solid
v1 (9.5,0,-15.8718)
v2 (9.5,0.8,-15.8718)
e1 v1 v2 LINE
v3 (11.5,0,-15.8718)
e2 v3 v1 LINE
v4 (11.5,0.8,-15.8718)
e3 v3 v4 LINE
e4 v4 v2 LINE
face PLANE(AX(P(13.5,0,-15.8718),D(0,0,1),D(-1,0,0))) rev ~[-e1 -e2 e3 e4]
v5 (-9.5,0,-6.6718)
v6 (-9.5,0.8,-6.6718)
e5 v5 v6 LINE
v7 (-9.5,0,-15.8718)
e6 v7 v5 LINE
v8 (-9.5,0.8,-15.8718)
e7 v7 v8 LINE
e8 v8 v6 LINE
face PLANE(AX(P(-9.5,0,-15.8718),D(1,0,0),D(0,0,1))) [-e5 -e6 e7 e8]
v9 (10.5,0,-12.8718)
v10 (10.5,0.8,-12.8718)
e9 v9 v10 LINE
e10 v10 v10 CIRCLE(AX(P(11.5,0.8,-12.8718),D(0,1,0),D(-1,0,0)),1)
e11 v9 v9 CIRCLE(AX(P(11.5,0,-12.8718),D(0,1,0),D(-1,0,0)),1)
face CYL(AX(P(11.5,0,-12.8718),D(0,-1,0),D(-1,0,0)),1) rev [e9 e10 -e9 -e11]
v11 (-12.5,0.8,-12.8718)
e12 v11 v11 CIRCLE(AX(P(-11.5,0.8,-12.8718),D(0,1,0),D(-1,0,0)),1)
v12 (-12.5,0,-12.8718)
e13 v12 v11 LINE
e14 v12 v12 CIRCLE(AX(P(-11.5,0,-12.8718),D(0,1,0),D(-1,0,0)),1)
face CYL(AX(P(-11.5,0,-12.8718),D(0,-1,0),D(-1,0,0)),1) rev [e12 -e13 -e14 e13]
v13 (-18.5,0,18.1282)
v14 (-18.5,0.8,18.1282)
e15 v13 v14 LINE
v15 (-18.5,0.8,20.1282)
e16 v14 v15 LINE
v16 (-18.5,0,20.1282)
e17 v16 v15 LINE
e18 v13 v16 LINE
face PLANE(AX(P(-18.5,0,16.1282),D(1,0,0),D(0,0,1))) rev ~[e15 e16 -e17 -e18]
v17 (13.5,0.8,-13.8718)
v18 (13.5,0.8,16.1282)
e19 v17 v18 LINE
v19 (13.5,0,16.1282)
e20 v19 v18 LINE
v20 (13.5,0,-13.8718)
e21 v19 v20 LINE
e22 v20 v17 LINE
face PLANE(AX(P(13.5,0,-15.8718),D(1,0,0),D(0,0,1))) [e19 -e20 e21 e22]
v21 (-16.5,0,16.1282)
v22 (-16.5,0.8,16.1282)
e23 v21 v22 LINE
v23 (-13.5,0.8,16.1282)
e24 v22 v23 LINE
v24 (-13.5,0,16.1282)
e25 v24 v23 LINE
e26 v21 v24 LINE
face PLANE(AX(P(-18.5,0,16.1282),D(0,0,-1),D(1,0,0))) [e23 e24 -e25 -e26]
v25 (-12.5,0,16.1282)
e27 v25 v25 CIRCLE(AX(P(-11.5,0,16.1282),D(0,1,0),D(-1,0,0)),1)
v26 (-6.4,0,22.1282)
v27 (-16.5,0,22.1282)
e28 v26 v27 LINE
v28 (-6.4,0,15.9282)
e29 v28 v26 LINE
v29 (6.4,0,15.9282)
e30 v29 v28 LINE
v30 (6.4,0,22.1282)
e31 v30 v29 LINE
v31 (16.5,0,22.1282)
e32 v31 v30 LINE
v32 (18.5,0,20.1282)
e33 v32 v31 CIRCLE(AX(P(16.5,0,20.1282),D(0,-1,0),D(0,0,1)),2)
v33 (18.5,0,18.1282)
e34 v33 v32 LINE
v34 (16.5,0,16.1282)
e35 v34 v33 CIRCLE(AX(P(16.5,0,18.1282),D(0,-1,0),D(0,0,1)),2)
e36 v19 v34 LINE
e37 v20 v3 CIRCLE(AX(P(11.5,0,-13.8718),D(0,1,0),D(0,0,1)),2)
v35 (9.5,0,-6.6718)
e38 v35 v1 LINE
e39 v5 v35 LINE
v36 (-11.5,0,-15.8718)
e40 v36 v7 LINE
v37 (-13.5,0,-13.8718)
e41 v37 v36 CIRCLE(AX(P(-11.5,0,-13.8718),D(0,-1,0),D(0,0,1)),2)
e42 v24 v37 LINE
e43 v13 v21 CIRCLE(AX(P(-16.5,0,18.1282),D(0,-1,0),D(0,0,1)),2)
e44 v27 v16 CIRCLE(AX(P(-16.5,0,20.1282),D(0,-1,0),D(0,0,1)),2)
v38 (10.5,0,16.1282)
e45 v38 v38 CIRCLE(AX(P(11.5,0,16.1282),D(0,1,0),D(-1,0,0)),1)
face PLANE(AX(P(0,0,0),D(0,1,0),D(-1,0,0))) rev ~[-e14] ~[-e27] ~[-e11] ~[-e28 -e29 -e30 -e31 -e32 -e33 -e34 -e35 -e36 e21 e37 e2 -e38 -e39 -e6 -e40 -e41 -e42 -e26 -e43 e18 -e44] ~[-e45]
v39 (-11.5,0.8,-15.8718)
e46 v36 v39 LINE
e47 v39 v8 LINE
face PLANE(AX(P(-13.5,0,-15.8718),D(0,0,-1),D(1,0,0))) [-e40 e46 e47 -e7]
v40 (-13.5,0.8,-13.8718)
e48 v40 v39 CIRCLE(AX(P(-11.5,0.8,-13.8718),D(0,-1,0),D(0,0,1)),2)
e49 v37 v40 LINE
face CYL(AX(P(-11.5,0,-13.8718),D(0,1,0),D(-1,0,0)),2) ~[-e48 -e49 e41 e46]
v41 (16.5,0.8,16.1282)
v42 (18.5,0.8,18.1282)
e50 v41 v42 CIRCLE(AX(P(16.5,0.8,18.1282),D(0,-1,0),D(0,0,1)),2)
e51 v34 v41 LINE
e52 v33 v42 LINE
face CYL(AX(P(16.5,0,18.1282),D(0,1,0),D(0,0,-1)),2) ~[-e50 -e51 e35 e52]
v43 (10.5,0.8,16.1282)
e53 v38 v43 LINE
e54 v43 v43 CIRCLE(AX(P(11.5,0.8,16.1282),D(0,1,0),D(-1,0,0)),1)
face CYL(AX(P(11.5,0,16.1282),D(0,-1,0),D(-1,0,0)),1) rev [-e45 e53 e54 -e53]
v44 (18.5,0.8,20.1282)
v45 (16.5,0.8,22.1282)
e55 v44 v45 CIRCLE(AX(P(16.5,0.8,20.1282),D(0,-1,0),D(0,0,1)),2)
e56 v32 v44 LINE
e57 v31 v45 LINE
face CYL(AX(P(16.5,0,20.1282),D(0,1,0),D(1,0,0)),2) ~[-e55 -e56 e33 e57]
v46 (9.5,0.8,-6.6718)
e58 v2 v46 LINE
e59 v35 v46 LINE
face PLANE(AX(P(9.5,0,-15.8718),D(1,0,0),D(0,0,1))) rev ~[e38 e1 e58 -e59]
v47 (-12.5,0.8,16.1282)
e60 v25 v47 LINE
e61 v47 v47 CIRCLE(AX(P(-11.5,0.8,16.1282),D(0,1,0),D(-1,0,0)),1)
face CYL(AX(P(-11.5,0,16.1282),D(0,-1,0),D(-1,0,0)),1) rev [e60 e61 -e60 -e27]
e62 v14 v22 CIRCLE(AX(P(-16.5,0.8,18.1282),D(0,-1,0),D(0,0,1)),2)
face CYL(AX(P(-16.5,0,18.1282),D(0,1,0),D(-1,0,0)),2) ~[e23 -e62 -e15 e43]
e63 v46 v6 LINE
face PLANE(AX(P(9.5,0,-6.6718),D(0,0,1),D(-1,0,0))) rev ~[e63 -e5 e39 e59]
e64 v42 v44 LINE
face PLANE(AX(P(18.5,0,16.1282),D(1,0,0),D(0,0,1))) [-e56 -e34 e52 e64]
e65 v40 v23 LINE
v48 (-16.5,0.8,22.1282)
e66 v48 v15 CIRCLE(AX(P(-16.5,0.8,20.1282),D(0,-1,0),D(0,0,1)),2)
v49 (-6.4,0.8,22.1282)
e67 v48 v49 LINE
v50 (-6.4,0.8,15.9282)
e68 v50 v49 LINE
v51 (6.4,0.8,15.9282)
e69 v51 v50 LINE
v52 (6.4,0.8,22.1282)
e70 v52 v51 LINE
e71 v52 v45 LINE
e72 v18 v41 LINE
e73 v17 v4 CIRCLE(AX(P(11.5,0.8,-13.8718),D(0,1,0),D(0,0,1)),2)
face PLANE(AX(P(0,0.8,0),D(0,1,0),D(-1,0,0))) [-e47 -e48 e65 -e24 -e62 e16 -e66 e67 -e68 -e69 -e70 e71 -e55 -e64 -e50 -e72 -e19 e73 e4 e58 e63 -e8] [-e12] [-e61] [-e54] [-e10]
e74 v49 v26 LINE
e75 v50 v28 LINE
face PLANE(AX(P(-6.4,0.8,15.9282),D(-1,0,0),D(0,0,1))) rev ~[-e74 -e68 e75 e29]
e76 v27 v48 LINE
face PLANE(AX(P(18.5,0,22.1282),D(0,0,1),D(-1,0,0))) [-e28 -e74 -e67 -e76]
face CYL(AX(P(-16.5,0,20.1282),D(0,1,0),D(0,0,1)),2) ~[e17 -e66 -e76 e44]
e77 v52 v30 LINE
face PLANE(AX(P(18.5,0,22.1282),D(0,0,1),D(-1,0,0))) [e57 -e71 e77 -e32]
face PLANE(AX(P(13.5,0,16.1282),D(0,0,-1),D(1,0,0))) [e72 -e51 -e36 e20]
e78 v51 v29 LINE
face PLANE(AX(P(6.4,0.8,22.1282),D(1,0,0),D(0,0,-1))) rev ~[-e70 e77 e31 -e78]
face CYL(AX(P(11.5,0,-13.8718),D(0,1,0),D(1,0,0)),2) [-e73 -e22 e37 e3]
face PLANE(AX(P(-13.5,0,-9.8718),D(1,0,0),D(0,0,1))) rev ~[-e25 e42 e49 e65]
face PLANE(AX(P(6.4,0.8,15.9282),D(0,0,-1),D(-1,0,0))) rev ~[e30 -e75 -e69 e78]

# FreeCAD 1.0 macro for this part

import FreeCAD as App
import Part
import Sketcher
from FreeCAD import Vector
Q = App.Units.Quantity


def edges_at(feature, points):
    """Names of the edges that pass closest to the given points."""
    edges = feature.Shape.Edges
    near = lambda p: min(range(len(edges)), key=lambda i: edges[i].distToShape(Part.Vertex(*p))[0])
    return sorted({f"Edge{near(p) + 1}" for p in points})

doc = App.newDocument("Part")
body = doc.addObject("PartDesign::Body", "Body")

sketch1 = body.newObject("Sketcher::SketchObject", "Sketch")
sketch1.AttachmentSupport = (doc.getObject("XZ_Plane"), [""])
sketch1.MapMode = "FlatFace"
sketch1.addGeometry([
    Part.LineSegment(Vector(13.5, -15.9, 0), Vector(9.5, -15.9, 0)),
    Part.LineSegment(Vector(9.5, -15.9, 0), Vector(9.5, -6.7, 0)),
    Part.LineSegment(Vector(9.5, -6.7, 0), Vector(-9.5, -6.7, 0)),
    Part.LineSegment(Vector(-9.5, -6.7, 0), Vector(-9.5, -15.9, 0)),
    Part.LineSegment(Vector(-9.5, -15.9, 0), Vector(-13.5, -15.9, 0)),
    Part.LineSegment(Vector(-13.5, -15.9, 0), Vector(-13.5, 16.1, 0)),
    Part.LineSegment(Vector(-13.5, 16.1, 0), Vector(-18.5, 16.1, 0)),
    Part.LineSegment(Vector(-18.5, 16.1, 0), Vector(-18.5, 22.1, 0)),
    Part.LineSegment(Vector(-18.5, 22.1, 0), Vector(18.5, 22.1, 0)),
    Part.LineSegment(Vector(18.5, 22.1, 0), Vector(18.5, 16.1, 0)),
    Part.LineSegment(Vector(18.5, 16.1, 0), Vector(13.5, 16.1, 0)),
    Part.LineSegment(Vector(13.5, 16.1, 0), Vector(13.5, -15.9, 0)),
    Part.Circle(Vector(11.5, -12.9, 0), Vector(0, 0, 1), 1),
    Part.Circle(Vector(11.5, 16.1, 0), Vector(0, 0, 1), 1),
    Part.Circle(Vector(-11.5, -12.9, 0), Vector(0, 0, 1), 1),
    Part.Circle(Vector(-11.5, 16.1, 0), Vector(0, 0, 1), 1),
], False)
sketch1.addConstraint([
    Sketcher.Constraint("Coincident", 0, 2, 1, 1),
    Sketcher.Constraint("Coincident", 1, 2, 2, 1),
    Sketcher.Constraint("Coincident", 2, 2, 3, 1),
    Sketcher.Constraint("Coincident", 3, 2, 4, 1),
    Sketcher.Constraint("Coincident", 4, 2, 5, 1),
    Sketcher.Constraint("Coincident", 5, 2, 6, 1),
    Sketcher.Constraint("Coincident", 6, 2, 7, 1),
    Sketcher.Constraint("Coincident", 7, 2, 8, 1),
    Sketcher.Constraint("Coincident", 8, 2, 9, 1),
    Sketcher.Constraint("Coincident", 9, 2, 10, 1),
    Sketcher.Constraint("Coincident", 10, 2, 11, 1),
    Sketcher.Constraint("Coincident", 11, 2, 0, 1),
    Sketcher.Constraint("Horizontal", 0),
    Sketcher.Constraint("Vertical", 1),
    Sketcher.Constraint("Horizontal", 2),
    Sketcher.Constraint("Vertical", 3),
    Sketcher.Constraint("Horizontal", 4),
    Sketcher.Constraint("Vertical", 5),
    Sketcher.Constraint("Horizontal", 6),
    Sketcher.Constraint("Vertical", 7),
    Sketcher.Constraint("Horizontal", 8),
    Sketcher.Constraint("Vertical", 9),
    Sketcher.Constraint("Horizontal", 10),
    Sketcher.Constraint("Vertical", 11),
    Sketcher.Constraint("Equal", 12, 13),
    Sketcher.Constraint("Equal", 13, 14),
    Sketcher.Constraint("Equal", 14, 15),
    Sketcher.Constraint("Symmetric", 12, 3, 14, 3, -2),
    Sketcher.Constraint("Symmetric", 13, 3, 15, 3, -2),
    Sketcher.Constraint("Symmetric", 0, 2, 3, 2, -2),
    Sketcher.Constraint("Symmetric", 6, 2, 9, 2, -2),
    Sketcher.Constraint("Horizontal", 15, 3, 5, 2),
    Sketcher.Constraint("Vertical", 12, 3, 13, 3),
    Sketcher.Constraint("Equal", 0, 4),
    Sketcher.Constraint("Diameter", 12, Q("2 mm")),
    Sketcher.Constraint("DistanceY", 7, 1, 7, 2, Q("6 mm")),
    Sketcher.Constraint("DistanceY", 12, 3, 13, 3, Q("29 mm")),
    Sketcher.Constraint("DistanceX", 0, 2, 12, 3, Q("2 mm")),
    Sketcher.Constraint("DistanceX", 4, 2, 14, 3, Q("2 mm")),
    Sketcher.Constraint("DistanceX", 2, 2, 2, 1, Q("19 mm")),
    Sketcher.Constraint("DistanceX", 6, 2, 6, 1, Q("5 mm")),
    Sketcher.Constraint("DistanceY", 5, 1, 5, 2, Q("32 mm")),
    Sketcher.Constraint("DistanceY", 1, 1, 1, 2, Q("9.2 mm")),
    Sketcher.Constraint("DistanceY", 12, 3, -1, 1, Q("12.8718 mm")),
])
pad1 = body.newObject("PartDesign::Pad", "Pad")
pad1.Profile = sketch1
pad1.Length = 0.8
pad1.Reversed = True

sketch2 = body.newObject("Sketcher::SketchObject", "Sketch001")
sketch2.AttachmentSupport = (doc.getObject("XZ_Plane"), [""])
sketch2.MapMode = "FlatFace"
sketch2.AttachmentOffset = App.Placement(Vector(0, 0, -0.8), App.Rotation())
sketch2.addGeometry([
    Part.LineSegment(Vector(6, 22, 0), Vector(6, 16, 0)),
    Part.LineSegment(Vector(6, 16, 0), Vector(-6, 16, 0)),
    Part.LineSegment(Vector(-6, 16, 0), Vector(-6, 22, 0)),
    Part.LineSegment(Vector(-6, 22, 0), Vector(6, 22, 0)),
], False)
sketch2.addConstraint([
    Sketcher.Constraint("Coincident", 0, 2, 1, 1),
    Sketcher.Constraint("Coincident", 1, 2, 2, 1),
    Sketcher.Constraint("Coincident", 2, 2, 3, 1),
    Sketcher.Constraint("Coincident", 3, 2, 0, 1),
    Sketcher.Constraint("Vertical", 0),
    Sketcher.Constraint("Horizontal", 1),
    Sketcher.Constraint("Vertical", 2),
    Sketcher.Constraint("Horizontal", 3),
    Sketcher.Constraint("DistanceX", 1, 2, 1, 1, Q("12.8 mm")),
    Sketcher.Constraint("DistanceY", 0, 2, 0, 1, Q("6.2 mm")),
    Sketcher.Constraint("DistanceX", -1, 1, 0, 2, Q("6.4 mm")),
    Sketcher.Constraint("DistanceY", -1, 1, 0, 2, Q("15.9282 mm")),
])
pocket1 = body.newObject("PartDesign::Pocket", "Pocket")
pocket1.Profile = sketch2
pocket1.Type = "ThroughAll"
pocket1.Reversed = True
doc.recompute()

fillet = body.newObject("PartDesign::Fillet", "Fillet")
fillet.Base = (pocket1, edges_at(pocket1, [
    (13.5, 0.4, -15.872),
    (-13.5, 0.4, -15.872),
    (-18.5, 0.4, 16.128),
    (-18.5, 0.4, 22.128),
    (18.5, 0.4, 22.128),
    (18.5, 0.4, 16.128),
]))
fillet.Radius = 2

doc.recompute()
